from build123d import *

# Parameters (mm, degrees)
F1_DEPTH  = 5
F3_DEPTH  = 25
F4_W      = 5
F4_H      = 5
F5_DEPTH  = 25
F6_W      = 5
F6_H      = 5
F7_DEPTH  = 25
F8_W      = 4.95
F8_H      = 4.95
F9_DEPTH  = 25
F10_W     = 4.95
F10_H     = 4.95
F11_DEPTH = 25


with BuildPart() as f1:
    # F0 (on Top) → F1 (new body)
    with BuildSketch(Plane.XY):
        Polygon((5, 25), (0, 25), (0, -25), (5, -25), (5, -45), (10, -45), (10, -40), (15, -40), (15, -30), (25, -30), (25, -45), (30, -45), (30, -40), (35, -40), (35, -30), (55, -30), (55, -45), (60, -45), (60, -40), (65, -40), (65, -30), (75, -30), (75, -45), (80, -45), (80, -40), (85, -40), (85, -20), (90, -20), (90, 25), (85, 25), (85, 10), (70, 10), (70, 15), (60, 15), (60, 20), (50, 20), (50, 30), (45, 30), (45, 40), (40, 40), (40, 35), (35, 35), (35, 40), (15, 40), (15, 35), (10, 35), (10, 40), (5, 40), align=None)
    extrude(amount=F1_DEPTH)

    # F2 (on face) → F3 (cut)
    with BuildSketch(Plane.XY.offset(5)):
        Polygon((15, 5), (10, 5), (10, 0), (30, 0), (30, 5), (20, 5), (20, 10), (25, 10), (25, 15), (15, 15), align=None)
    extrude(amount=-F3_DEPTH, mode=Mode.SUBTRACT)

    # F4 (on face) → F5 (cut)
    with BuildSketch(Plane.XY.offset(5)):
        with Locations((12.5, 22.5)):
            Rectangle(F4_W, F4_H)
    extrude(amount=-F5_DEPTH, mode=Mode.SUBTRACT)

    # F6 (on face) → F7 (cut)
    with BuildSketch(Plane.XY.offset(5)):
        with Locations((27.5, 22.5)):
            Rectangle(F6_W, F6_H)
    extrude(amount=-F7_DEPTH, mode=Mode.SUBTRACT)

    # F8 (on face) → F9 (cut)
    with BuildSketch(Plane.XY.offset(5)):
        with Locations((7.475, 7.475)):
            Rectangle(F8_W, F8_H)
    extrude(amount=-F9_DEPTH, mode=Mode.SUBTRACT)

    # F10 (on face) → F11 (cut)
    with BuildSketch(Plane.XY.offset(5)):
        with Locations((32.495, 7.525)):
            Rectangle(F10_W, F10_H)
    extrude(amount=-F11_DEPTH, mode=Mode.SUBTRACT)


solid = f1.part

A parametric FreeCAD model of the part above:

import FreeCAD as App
import Part
import Sketcher


def add_polygon(sketch, points):
    """Adds a closed chain of lines whose ends are joined by coincident constraints."""
    first, n = sketch.GeometryCount, len(points)
    for a, b in zip(points, points[1:] + points[:1]):
        sketch.addGeometry(Part.LineSegment(App.Vector(*a, 0), App.Vector(*b, 0)), False)
    for i in range(n):
        sketch.addConstraint(Sketcher.Constraint("Coincident", first + i, 2, first + (i + 1) % n, 1))

doc = App.newDocument("Part")
body = doc.addObject("PartDesign::Body", "Body")

# Sketch on XY plane
sketch1 = body.newObject("Sketcher::SketchObject", "Sketch")
sketch1.AttachmentSupport = (doc.getObject("XY_Plane"), [""])
sketch1.MapMode = "FlatFace"
add_polygon(sketch1, [(5, 25), (0, 25), (0, -25), (5, -25), (5, -45), (10, -45), (10, -40), (15, -40), (15, -30), (25, -30), (25, -45), (30, -45), (30, -40), (35, -40), (35, -30), (55, -30), (55, -45), (60, -45), (60, -40), (65, -40), (65, -30), (75, -30), (75, -45), (80, -45), (80, -40), (85, -40), (85, -20), (90, -20), (90, 25), (85, 25), (85, 10), (70, 10), (70, 15), (60, 15), (60, 20), (50, 20), (50, 30), (45, 30), (45, 40), (40, 40), (40, 35), (35, 35), (35, 40), (15, 40), (15, 35), (10, 35), (10, 40), (5, 40)])  # lines 0-47
sketch1.addConstraint([
    Sketcher.Constraint("Horizontal", 0),
    Sketcher.Constraint("Vertical", 1),
    Sketcher.Constraint("Horizontal", 2),
    Sketcher.Constraint("Vertical", 3),
    Sketcher.Constraint("Horizontal", 4),
    Sketcher.Constraint("Vertical", 5),
    Sketcher.Constraint("Horizontal", 6),
    Sketcher.Constraint("Vertical", 7),
    Sketcher.Constraint("Horizontal", 8),
    Sketcher.Constraint("Vertical", 9),
    Sketcher.Constraint("Horizontal", 10),
    Sketcher.Constraint("Vertical", 11),
    Sketcher.Constraint("Horizontal", 12),
    Sketcher.Constraint("Vertical", 13),
    Sketcher.Constraint("Horizontal", 14),
    Sketcher.Constraint("Vertical", 15),
    Sketcher.Constraint("Horizontal", 16),
    Sketcher.Constraint("Vertical", 17),
    Sketcher.Constraint("Horizontal", 18),
    Sketcher.Constraint("Vertical", 19),
    Sketcher.Constraint("Horizontal", 20),
    Sketcher.Constraint("Vertical", 21),
    Sketcher.Constraint("Horizontal", 22),
    Sketcher.Constraint("Vertical", 23),
    Sketcher.Constraint("Horizontal", 24),
    Sketcher.Constraint("Vertical", 25),
    Sketcher.Constraint("Horizontal", 26),
    Sketcher.Constraint("Vertical", 27),
    Sketcher.Constraint("Horizontal", 28),
    Sketcher.Constraint("Vertical", 29),
    Sketcher.Constraint("Horizontal", 30),
    Sketcher.Constraint("Vertical", 31),
    Sketcher.Constraint("Horizontal", 32),
    Sketcher.Constraint("Vertical", 33),
    Sketcher.Constraint("Horizontal", 34),
    Sketcher.Constraint("Vertical", 35),
    Sketcher.Constraint("Horizontal", 36),
    Sketcher.Constraint("Vertical", 37),
    Sketcher.Constraint("Horizontal", 38),
    Sketcher.Constraint("Vertical", 39),
    Sketcher.Constraint("Horizontal", 40),
    Sketcher.Constraint("Vertical", 41),
    Sketcher.Constraint("Horizontal", 42),
    Sketcher.Constraint("Vertical", 43),
    Sketcher.Constraint("Horizontal", 44),
    Sketcher.Constraint("Vertical", 45),
    Sketcher.Constraint("Horizontal", 46),
    Sketcher.Constraint("Vertical", 47),
    Sketcher.Constraint("Symmetric", 0, 2, 1, 2, -1, 1),
    Sketcher.Constraint("Symmetric", 12, 2, 41, 2, -1),
    Sketcher.Constraint("Symmetric", 6, 2, 42, 2, -1),
    Sketcher.Constraint("Symmetric", 5, 2, 45, 2, -1),
    Sketcher.Constraint("Horizontal", 4, 2, 9, 2),
    Sketcher.Constraint("Horizontal", 8, 2, 13, 2),
    Sketcher.Constraint("Horizontal", 10, 2, 15, 2),
    Sketcher.Constraint("Horizontal", 12, 2, 17, 2),
    Sketcher.Constraint("Horizontal", 14, 2, 19, 2),
    Sketcher.Constraint("Horizontal", 16, 2, 21, 2),
    Sketcher.Constraint("Horizontal", 18, 2, 23, 2),
    Sketcher.Constraint("Horizontal", 0, 2, 27, 2),
    Sketcher.Constraint("Horizontal", 38, 2, 41, 2),
    Sketcher.Constraint("Horizontal", 40, 2, 43, 2),
    Sketcher.Constraint("Vertical", 25, 2, 28, 2),
    Sketcher.Constraint("Vertical", 17, 2, 32, 2),
    Sketcher.Constraint("Vertical", 3, 2, 46, 2),
    Sketcher.Constraint("Equal", 2, 4),
    Sketcher.Constraint("Equal", 4, 6),
    Sketcher.Constraint("Equal", 6, 10),
    Sketcher.Constraint("Equal", 10, 12),
    Sketcher.Constraint("Equal", 12, 16),
    Sketcher.Constraint("Equal", 16, 18),
    Sketcher.Constraint("Equal", 8, 20),
    Sketcher.Constraint("Equal", 18, 22),
    Sketcher.Constraint("Equal", 22, 24),
    Sketcher.Constraint("Equal", 24, 26),
    Sketcher.Constraint("Equal", 20, 32),
    Sketcher.Constraint("Equal", 32, 34),
    Sketcher.Constraint("Equal", 28, 36),
    Sketcher.Constraint("Equal", 36, 38),
    Sketcher.Constraint("Equal", 38, 40),
    Sketcher.Constraint("Equal", 42, 3),
    Sketcher.Constraint("Equal", 46, 5),
    Sketcher.Constraint("Equal", 34, 7),
    Sketcher.Constraint("Equal", 30, 9),
    Sketcher.Constraint("Equal", 3, 25),
    Sketcher.Constraint("Equal", 21, 29),
    Sketcher.Constraint("Equal", 23, 31),
    Sketcher.Constraint("Equal", 31, 33),
    Sketcher.Constraint("Equal", 19, 35),
    Sketcher.Constraint("Equal", 33, 39),
    Sketcher.Constraint("DistanceX", 0, 2, 0, 1, 5.0),
    Sketcher.Constraint("DistanceY", 1, 2, 1, 1, 50.0),
])
pad1 = body.newObject("PartDesign::Pad", "Pad")
pad1.Profile = sketch1
pad1.Length = 5

# Sketch on XY plane
sketch2 = body.newObject("Sketcher::SketchObject", "Sketch001")
sketch2.AttachmentSupport = (doc.getObject("XY_Plane"), [""])
sketch2.MapMode = "FlatFace"
sketch2.AttachmentOffset = App.Placement(App.Vector(0, 0, 5), App.Rotation())
add_polygon(sketch2, [(15, 5), (10, 5), (10, 0), (30, 0), (30, 5), (20, 5), (20, 10), (25, 10), (25, 15), (15, 15)])  # lines 0-9
sketch2.addConstraint([
    Sketcher.Constraint("Horizontal", 0),
    Sketcher.Constraint("Vertical", 1),
    Sketcher.Constraint("Horizontal", 2),
    Sketcher.Constraint("Vertical", 3),
    Sketcher.Constraint("Horizontal", 4),
    Sketcher.Constraint("Vertical", 5),
    Sketcher.Constraint("Horizontal", 6),
    Sketcher.Constraint("Vertical", 7),
    Sketcher.Constraint("Horizontal", 8),
    Sketcher.Constraint("Vertical", 9),
    Sketcher.Constraint("PointOnObject", 1, 2, -1),
    Sketcher.Constraint("Horizontal", 0, 2, 3, 2),
    Sketcher.Constraint("Equal", 0, 6),
    Sketcher.Constraint("Equal", 4, 8),
    Sketcher.Constraint("Equal", 6, 1),
    Sketcher.Constraint("Equal", 3, 5),
    Sketcher.Constraint("Equal", 5, 7),
    Sketcher.Constraint("Equal", 8, 9),
    Sketcher.Constraint("DistanceX", 0, 2, 0, 1, 5.0),
    Sketcher.Constraint("DistanceX", -1, 1, 0, 2, 10.0),
])
pocket1 = body.newObject("PartDesign::Pocket", "Pocket")
pocket1.Profile = sketch2
pocket1.Length = 25

# Sketch on XY plane
sketch3 = body.newObject("Sketcher::SketchObject", "Sketch002")
sketch3.AttachmentSupport = (doc.getObject("XY_Plane"), [""])
sketch3.MapMode = "FlatFace"
sketch3.AttachmentOffset = App.Placement(App.Vector(0, 0, 5), App.Rotation())
add_polygon(sketch3, [(10, 25), (10, 20), (15, 20), (15, 25)])  # lines 0-3
sketch3.addConstraint([
    Sketcher.Constraint("Vertical", 0),
    Sketcher.Constraint("Horizontal", 1),
    Sketcher.Constraint("Vertical", 2),
    Sketcher.Constraint("Horizontal", 3),
    Sketcher.Constraint("Equal", 3, 0),
    Sketcher.Constraint("DistanceX", 1, 1, 1, 2, 5.0),
    Sketcher.Constraint("DistanceX", -1, 1, 0, 2, 10.0),
    Sketcher.Constraint("DistanceY", -1, 1, 0, 2, 20.0),
])
pocket2 = body.newObject("PartDesign::Pocket", "Pocket001")
pocket2.Profile = sketch3
pocket2.Length = 25

# Sketch on XY plane
sketch4 = body.newObject("Sketcher::SketchObject", "Sketch003")
sketch4.AttachmentSupport = (doc.getObject("XY_Plane"), [""])
sketch4.MapMode = "FlatFace"
sketch4.AttachmentOffset = App.Placement(App.Vector(0, 0, 5), App.Rotation())
add_polygon(sketch4, [(25, 25), (25, 20), (30, 20), (30, 25)])  # lines 0-3
sketch4.addConstraint([
    Sketcher.Constraint("Vertical", 0),
    Sketcher.Constraint("Horizontal", 1),
    Sketcher.Constraint("Vertical", 2),
    Sketcher.Constraint("Horizontal", 3),
    Sketcher.Constraint("Equal", 3, 0),
    Sketcher.Constraint("DistanceX", 1, 1, 1, 2, 5.0),
    Sketcher.Constraint("DistanceX", -1, 1, 0, 2, 25.0),
    Sketcher.Constraint("DistanceY", -1, 1, 0, 2, 20.0),
])
pocket3 = body.newObject("PartDesign::Pocket", "Pocket002")
pocket3.Profile = sketch4
pocket3.Length = 25

# Sketch on XY plane
sketch5 = body.newObject("Sketcher::SketchObject", "Sketch004")
sketch5.AttachmentSupport = (doc.getObject("XY_Plane"), [""])
sketch5.MapMode = "FlatFace"
sketch5.AttachmentOffset = App.Placement(App.Vector(0, 0, 5), App.Rotation())
add_polygon(sketch5, [(5, 9.9), (5, 5), (9.9, 5), (9.9, 9.9)])  # lines 0-3
sketch5.addConstraint([
    Sketcher.Constraint("Vertical", 0),
    Sketcher.Constraint("Horizontal", 1),
    Sketcher.Constraint("Vertical", 2),
    Sketcher.Constraint("Horizontal", 3),
    Sketcher.Constraint("Equal", 3, 0),
    Sketcher.Constraint("DistanceX", -1, 1, 0, 2, 5.0),
    Sketcher.Constraint("DistanceY", -1, 1, 0, 2, 5.0),
    Sketcher.Constraint("DistanceX", 1, 1, 1, 2, 4.95),
])
pocket4 = body.newObject("PartDesign::Pocket", "Pocket003")
pocket4.Profile = sketch5
pocket4.Length = 25

# Sketch on XY plane
sketch6 = body.newObject("Sketcher::SketchObject", "Sketch005")
sketch6.AttachmentSupport = (doc.getObject("XY_Plane"), [""])
sketch6.MapMode = "FlatFace"
sketch6.AttachmentOffset = App.Placement(App.Vector(0, 0, 5), App.Rotation())
add_polygon(sketch6, [(30, 10), (30, 5), (35, 5), (35, 10)])  # lines 0-3
sketch6.addConstraint([
    Sketcher.Constraint("Vertical", 0),
    Sketcher.Constraint("Horizontal", 1),
    Sketcher.Constraint("Vertical", 2),
    Sketcher.Constraint("Horizontal", 3),
    Sketcher.Constraint("Equal", 3, 0),
    Sketcher.Constraint("DistanceY", -1, 1, 2, 2, 10.0),
    Sketcher.Constraint("DistanceX", 1, 1, 1, 2, 4.95),
    Sketcher.Constraint("DistanceX", -1, 1, 0, 2, 30.02),
])
pocket5 = body.newObject("PartDesign::Pocket", "Pocket004")
pocket5.Profile = sketch6
pocket5.Length = 25

doc.recompute()
